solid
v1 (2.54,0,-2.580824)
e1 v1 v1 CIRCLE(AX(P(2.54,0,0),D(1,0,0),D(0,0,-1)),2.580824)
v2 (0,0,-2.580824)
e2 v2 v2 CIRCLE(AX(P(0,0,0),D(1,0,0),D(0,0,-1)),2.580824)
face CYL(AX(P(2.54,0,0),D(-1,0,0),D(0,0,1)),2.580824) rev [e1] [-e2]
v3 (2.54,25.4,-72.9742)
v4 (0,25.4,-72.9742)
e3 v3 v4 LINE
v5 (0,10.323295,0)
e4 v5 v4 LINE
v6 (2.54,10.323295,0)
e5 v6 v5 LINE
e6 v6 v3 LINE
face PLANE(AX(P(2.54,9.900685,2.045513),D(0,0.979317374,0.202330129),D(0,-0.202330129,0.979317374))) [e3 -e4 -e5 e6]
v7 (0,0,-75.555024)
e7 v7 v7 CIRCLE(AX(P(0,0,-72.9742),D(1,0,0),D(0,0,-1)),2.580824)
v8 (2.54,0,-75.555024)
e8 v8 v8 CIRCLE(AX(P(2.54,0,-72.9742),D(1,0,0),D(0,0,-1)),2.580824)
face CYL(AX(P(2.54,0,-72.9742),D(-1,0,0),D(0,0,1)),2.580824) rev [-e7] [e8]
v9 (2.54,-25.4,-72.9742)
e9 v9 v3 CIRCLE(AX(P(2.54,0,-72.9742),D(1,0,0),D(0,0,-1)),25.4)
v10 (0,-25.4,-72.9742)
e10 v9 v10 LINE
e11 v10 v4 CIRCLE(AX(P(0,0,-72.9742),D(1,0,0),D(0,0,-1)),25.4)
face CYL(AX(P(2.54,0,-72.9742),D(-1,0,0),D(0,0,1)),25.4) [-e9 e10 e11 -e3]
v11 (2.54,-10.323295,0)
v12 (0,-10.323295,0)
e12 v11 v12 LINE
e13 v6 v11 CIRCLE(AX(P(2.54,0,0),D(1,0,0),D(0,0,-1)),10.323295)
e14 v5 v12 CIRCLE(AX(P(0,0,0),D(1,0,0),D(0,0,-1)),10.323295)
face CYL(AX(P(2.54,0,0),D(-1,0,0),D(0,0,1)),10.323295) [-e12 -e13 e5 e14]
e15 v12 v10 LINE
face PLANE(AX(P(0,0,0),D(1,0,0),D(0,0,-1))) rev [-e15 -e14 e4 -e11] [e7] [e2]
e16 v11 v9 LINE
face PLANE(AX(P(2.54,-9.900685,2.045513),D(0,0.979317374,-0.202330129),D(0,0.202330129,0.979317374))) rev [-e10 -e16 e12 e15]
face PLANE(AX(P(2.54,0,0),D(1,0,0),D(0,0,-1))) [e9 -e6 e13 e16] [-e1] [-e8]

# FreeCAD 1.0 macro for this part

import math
import FreeCAD as App
import Part
import Sketcher
from FreeCAD import Vector
Q = App.Units.Quantity

doc = App.newDocument("Part")
body = doc.addObject("PartDesign::Body", "Body")

# Sketch on YZ plane
sketch1 = doc.addObject("Sketcher::SketchObject", "Sketch")
body.addObject(sketch1)
sketch1.AttachmentSupport = (doc.YZ_Plane, [""])
sketch1.MapMode = "FlatFace"
sketch1.addGeometry(Part.ArcOfCircle(Part.Circle(Vector(0, 0, 0), Vector(0, 0, 1), 10.3), math.radians(0), math.radians(180)), False)
sketch1.addGeometry(Part.LineSegment(Vector(-10.3, 0, 0), Vector(-25.4, -73, 0)), False)
sketch1.addGeometry(Part.ArcOfCircle(Part.Circle(Vector(0, -73, 0), Vector(0, 0, 1), 25.4), math.radians(180), math.radians(360)), False)
sketch1.addGeometry(Part.LineSegment(Vector(25.4, -73, 0), Vector(10.3, 0, 0)), False)
sketch1.addGeometry(Part.Circle(Vector(0, 0, 0), Vector(0, 0, 1), 2.6), False)
sketch1.addGeometry(Part.Circle(Vector(0, -73, 0), Vector(0, 0, 1), 2.6), False)
sketch1.addConstraint(Sketcher.Constraint("Coincident", 0, 2, 1, 1))
sketch1.addConstraint(Sketcher.Constraint("Coincident", 1, 2, 2, 1))
sketch1.addConstraint(Sketcher.Constraint("Coincident", 2, 2, 3, 1))
sketch1.addConstraint(Sketcher.Constraint("Coincident", 3, 2, 0, 1))
sketch1.addConstraint(Sketcher.Constraint("Coincident", 0, 3, -1, 1))
sketch1.addConstraint(Sketcher.Constraint("Coincident", 4, 3, -1, 1))
sketch1.addConstraint(Sketcher.Constraint("Coincident", 5, 3, 2, 3))
sketch1.addConstraint(Sketcher.Constraint("Equal", 4, 5))
sketch1.addConstraint(Sketcher.Constraint("Symmetric", 1, 2, 2, 2, -2))
sketch1.addConstraint(Sketcher.Constraint("PointOnObject", 0, 2, -1))
sketch1.addConstraint(Sketcher.Constraint("PointOnObject", 3, 2, -1))
sketch1.addConstraint(Sketcher.Constraint("Horizontal", 5, 3, 1, 2))
sketch1.addConstraint(Sketcher.Constraint("Radius", 2, Q("1 in")))
sketch1.addConstraint(Sketcher.Constraint("DistanceY", 2, 3, -1, 1, Q("2.873 in")))
sketch1.addConstraint(Sketcher.Constraint("Diameter", 4, Q("5.161647 mm")))
sketch1.addConstraint(Sketcher.Constraint("Radius", 0, Q("10.323295 mm")))
pad1 = doc.addObject("PartDesign::Pad", "Pad")
body.addObject(pad1)
pad1.Profile = sketch1
pad1.Length = Q("0.1 in")

doc.recompute()
